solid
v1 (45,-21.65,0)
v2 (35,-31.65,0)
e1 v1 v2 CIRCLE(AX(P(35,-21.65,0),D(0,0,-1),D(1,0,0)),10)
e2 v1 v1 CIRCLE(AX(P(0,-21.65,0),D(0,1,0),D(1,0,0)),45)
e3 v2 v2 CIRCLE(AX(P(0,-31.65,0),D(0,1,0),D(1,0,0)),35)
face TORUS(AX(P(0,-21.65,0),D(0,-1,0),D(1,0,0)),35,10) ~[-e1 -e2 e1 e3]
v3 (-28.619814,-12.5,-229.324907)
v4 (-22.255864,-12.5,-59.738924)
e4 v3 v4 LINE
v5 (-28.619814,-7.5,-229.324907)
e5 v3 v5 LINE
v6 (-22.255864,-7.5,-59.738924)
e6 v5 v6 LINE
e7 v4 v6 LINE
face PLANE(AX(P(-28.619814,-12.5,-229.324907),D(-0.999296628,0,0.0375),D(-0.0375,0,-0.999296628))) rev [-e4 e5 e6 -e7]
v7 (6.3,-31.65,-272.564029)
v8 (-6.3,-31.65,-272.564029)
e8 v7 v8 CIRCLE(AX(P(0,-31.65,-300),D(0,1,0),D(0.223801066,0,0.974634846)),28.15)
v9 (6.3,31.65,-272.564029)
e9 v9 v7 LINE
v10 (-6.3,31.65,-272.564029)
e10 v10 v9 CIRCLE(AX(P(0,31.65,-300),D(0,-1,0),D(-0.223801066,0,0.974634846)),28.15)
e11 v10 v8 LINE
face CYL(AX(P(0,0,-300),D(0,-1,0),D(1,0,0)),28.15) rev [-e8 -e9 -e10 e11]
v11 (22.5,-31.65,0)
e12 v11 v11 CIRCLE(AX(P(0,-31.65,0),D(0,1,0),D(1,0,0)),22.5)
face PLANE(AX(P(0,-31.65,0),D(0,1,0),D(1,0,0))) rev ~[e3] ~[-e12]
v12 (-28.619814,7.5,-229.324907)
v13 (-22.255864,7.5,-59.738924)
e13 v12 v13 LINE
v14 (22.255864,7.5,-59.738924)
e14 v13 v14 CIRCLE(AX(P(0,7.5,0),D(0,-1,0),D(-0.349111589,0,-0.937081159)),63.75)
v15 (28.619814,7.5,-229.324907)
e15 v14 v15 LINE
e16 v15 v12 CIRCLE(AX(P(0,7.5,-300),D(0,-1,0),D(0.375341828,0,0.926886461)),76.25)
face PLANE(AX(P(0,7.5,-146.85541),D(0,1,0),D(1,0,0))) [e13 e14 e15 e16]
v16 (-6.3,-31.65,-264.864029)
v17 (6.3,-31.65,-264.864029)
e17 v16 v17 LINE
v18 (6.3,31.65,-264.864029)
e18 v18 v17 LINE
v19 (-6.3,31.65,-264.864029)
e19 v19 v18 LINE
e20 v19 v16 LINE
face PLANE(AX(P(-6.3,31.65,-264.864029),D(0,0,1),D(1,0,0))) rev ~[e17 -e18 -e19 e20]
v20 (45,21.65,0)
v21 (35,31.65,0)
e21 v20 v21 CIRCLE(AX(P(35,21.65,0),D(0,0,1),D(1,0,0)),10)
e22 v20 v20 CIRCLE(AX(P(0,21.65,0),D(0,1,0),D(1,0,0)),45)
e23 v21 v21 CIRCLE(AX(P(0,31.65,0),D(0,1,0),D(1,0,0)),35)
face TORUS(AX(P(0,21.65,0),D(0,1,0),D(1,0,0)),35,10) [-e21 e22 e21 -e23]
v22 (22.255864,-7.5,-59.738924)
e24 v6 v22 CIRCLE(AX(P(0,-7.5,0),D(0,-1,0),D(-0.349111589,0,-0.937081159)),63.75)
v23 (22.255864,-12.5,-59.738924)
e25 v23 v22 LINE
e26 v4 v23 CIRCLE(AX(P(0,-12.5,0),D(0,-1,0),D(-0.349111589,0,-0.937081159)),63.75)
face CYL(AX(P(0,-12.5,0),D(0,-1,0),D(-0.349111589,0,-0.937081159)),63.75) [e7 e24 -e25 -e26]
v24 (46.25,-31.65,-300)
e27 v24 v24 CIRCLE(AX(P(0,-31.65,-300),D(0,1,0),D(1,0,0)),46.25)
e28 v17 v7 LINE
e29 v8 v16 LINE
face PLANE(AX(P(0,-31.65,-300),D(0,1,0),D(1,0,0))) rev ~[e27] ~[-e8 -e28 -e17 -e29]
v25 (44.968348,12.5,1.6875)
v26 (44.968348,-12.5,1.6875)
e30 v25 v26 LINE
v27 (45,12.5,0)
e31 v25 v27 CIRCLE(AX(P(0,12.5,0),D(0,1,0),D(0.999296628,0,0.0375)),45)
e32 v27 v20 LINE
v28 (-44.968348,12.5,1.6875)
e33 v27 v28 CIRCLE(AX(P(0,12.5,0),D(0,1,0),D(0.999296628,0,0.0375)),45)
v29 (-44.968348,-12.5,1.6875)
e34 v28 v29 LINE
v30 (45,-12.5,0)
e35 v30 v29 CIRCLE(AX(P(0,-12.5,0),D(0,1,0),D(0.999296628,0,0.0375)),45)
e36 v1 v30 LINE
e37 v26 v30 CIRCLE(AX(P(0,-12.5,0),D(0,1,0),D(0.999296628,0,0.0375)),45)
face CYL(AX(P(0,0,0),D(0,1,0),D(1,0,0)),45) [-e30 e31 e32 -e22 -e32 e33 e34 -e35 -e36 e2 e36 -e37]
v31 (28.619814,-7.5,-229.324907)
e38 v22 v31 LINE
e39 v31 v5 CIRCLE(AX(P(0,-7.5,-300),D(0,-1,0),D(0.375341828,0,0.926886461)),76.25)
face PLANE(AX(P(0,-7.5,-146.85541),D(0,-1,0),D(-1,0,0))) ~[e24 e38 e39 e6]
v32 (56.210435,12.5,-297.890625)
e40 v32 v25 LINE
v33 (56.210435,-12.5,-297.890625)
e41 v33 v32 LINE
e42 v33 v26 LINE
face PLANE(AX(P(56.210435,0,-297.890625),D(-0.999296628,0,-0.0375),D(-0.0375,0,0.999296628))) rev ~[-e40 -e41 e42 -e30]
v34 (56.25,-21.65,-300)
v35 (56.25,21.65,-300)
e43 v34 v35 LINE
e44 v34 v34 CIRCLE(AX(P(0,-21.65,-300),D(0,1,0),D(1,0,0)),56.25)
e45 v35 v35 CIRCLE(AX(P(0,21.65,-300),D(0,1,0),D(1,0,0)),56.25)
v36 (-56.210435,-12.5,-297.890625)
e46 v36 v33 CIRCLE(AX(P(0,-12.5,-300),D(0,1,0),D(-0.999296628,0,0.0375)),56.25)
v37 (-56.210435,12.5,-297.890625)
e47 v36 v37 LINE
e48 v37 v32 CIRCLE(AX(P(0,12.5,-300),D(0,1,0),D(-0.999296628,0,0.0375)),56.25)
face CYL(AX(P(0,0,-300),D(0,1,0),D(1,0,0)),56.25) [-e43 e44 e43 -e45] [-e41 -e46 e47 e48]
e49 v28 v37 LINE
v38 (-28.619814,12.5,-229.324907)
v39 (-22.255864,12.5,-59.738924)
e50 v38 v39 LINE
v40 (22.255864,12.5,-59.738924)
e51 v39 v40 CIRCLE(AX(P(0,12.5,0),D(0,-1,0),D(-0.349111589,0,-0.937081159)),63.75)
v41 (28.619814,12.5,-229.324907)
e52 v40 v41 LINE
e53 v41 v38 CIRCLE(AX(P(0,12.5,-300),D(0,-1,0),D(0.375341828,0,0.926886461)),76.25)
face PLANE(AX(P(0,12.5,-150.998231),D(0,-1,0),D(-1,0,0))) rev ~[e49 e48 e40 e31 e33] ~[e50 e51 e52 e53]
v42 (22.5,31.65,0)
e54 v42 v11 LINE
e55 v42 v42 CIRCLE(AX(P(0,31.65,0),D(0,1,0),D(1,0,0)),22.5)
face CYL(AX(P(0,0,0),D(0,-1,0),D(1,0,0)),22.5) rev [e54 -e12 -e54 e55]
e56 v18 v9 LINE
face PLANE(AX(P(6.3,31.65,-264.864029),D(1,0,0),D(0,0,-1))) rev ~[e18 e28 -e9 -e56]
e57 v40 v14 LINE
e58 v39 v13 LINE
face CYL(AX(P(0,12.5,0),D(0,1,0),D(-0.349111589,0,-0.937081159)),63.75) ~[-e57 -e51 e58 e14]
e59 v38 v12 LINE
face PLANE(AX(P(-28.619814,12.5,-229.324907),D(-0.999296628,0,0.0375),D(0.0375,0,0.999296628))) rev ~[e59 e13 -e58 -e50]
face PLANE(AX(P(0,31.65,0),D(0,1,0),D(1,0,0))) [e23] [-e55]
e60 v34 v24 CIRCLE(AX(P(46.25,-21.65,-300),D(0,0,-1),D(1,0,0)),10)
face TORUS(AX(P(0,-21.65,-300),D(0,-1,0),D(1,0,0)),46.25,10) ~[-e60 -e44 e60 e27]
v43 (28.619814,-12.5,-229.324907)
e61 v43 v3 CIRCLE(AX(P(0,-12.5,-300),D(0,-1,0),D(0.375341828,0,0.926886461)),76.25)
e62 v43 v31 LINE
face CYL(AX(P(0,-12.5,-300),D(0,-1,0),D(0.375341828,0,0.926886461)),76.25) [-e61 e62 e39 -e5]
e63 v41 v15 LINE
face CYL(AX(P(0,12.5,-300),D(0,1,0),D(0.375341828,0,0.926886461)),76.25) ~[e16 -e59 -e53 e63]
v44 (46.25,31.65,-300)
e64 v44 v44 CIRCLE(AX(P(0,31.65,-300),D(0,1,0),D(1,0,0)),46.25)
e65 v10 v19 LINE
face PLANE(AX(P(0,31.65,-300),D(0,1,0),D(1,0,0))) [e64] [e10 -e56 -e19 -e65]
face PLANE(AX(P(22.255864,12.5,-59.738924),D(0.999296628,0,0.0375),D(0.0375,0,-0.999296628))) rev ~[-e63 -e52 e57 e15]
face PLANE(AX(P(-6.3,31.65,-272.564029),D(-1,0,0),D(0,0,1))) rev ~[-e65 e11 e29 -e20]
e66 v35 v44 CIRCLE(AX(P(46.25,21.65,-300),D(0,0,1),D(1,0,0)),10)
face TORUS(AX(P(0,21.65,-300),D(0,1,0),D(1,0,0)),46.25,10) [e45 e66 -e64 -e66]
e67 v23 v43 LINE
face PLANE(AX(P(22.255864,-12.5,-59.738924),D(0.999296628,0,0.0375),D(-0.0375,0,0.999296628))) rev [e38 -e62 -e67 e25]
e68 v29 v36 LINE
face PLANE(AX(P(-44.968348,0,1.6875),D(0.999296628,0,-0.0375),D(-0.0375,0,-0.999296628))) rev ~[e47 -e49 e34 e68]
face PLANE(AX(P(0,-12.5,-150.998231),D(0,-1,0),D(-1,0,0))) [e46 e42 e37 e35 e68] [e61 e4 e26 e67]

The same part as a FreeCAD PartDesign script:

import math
import FreeCAD as App
import Part
import Sketcher
Q = App.Units.Quantity


def edges_at(feature, points):
    """Names of the edges that pass closest to the given points."""
    edges = feature.Shape.Edges
    near = lambda p: min(range(len(edges)), key=lambda i: edges[i].distToShape(Part.Vertex(*p))[0])
    return sorted({f"Edge{near(p) + 1}" for p in points})

doc = App.newDocument("Part")
body = doc.addObject("PartDesign::Body", "Body")

sketch1 = body.newObject("Sketcher::SketchObject", "Sketch")
sketch1.AttachmentSupport = (doc.getObject("XZ_Plane"), [""])
sketch1.MapMode = "FlatFace"
sketch1.addGeometry([
    Part.Circle(App.Vector(0, 0, 0), App.Vector(0, 0, 1), 45),
    Part.Circle(App.Vector(0, 0, 0), App.Vector(0, 0, 1), 22),
], False)
sketch1.addConstraint([
    Sketcher.Constraint("Coincident", 0, 3, -1, 1),
    Sketcher.Constraint("Coincident", 1, 3, -1, 1),
    Sketcher.Constraint("Diameter", 0, Q("90 mm")),
    Sketcher.Constraint("Diameter", 1, Q("45 mm")),
])
pad1 = body.newObject("PartDesign::Pad", "Pad")
pad1.Profile = sketch1
pad1.Length = 63.3
pad1.Midplane = True
body2 = doc.addObject("PartDesign::Body", "Body001")

sketch2 = body2.newObject("Sketcher::SketchObject", "Sketch001")
sketch2.AttachmentSupport = (doc.getObject("XZ_Plane001"), [""])
sketch2.MapMode = "FlatFace"
sketch2.addGeometry([
    Part.Circle(App.Vector(0, -300, 0), App.Vector(0, 0, 1), 56),
    Part.Circle(App.Vector(0, -300, 0), App.Vector(0, 0, 1), 28),
], False)
sketch2.addConstraint([
    Sketcher.Constraint("Coincident", 1, 3, 0, 3),
    Sketcher.Constraint("PointOnObject", 0, 3, -2),
    Sketcher.Constraint("Diameter", 0, Q("112.5 mm")),
    Sketcher.Constraint("Diameter", 1, Q("56.3 mm")),
    Sketcher.Constraint("DistanceY", 0, 3, -1, 1, Q("300 mm")),
])
pad2 = body2.newObject("PartDesign::Pad", "Pad001")
pad2.Profile = sketch2
pad2.Length = 63.3
pad2.Midplane = True
body.AllowCompound = True
doc.recompute()

boolean = body.newObject("PartDesign::Boolean", "Boolean")
boolean.Type = "Fuse"
boolean.addObjects([body2])

sketch3 = body.newObject("Sketcher::SketchObject", "Sketch002")
sketch3.AttachmentSupport = (doc.getObject("XZ_Plane"), [""])
sketch3.MapMode = "FlatFace"
sketch3.addGeometry([
    Part.LineSegment(App.Vector(45, 2, 0), App.Vector(56, -298, 0)),
    Part.ArcOfCircle(Part.Circle(App.Vector(0, -300, 0), App.Vector(0, 0, 1), 56), math.radians(2), math.radians(178)),
    Part.LineSegment(App.Vector(-56, -298, 0), App.Vector(-45, 2, 0)),
    Part.ArcOfCircle(Part.Circle(App.Vector(0, 0, 0), App.Vector(0, 0, 1), 45), math.radians(178), math.radians(362)),
], False)
sketch3.addConstraint([
    Sketcher.Constraint("Tangent", 0, 2, 1, 1),
    Sketcher.Constraint("Tangent", 1, 2, 2, 1),
    Sketcher.Constraint("Tangent", 2, 2, 3, 1),
    Sketcher.Constraint("Tangent", 3, 2, 0, 1),
    Sketcher.Constraint("Coincident", 3, 3, -1, 1),
    Sketcher.Constraint("PointOnObject", 1, 3, -2),
    Sketcher.Constraint("Radius", 3, Q("45 mm")),
    Sketcher.Constraint("Radius", 1, Q("56.25 mm")),
    Sketcher.Constraint("DistanceY", 1, 3, -1, 1, Q("300 mm")),
])
pad3 = body.newObject("PartDesign::Pad", "Pad002")
pad3.Profile = sketch3
pad3.Length = 25
pad3.Midplane = True

sketch4 = body.newObject("Sketcher::SketchObject", "Sketch003")
sketch4.AttachmentSupport = (doc.getObject("XZ_Plane"), [""])
sketch4.MapMode = "FlatFace"
sketch4.AttachmentOffset = App.Placement(App.Vector(0, 0, -12.5), App.Rotation())
sketch4.addGeometry([
    Part.LineSegment(App.Vector(22, -60, 0), App.Vector(29, -229, 0)),
    Part.ArcOfCircle(Part.Circle(App.Vector(0, -300, 0), App.Vector(0, 0, 1), 76), math.radians(68), math.radians(112)),
    Part.LineSegment(App.Vector(-29, -229, 0), App.Vector(-22, -60, 0)),
    Part.ArcOfCircle(Part.Circle(App.Vector(0, 0, 0), App.Vector(0, 0, 1), 64), math.radians(-110), math.radians(-70)),
], False)
sketch4.addConstraint([
    Sketcher.Constraint("Coincident", 0, 2, 1, 1),
    Sketcher.Constraint("Coincident", 1, 2, 2, 1),
    Sketcher.Constraint("Coincident", 2, 2, 3, 1),
    Sketcher.Constraint("Coincident", 3, 2, 0, 1),
    Sketcher.Constraint("Coincident", 3, 3, -1, 1),
    Sketcher.Constraint("Symmetric", 0, 2, 1, 2, -2),
    Sketcher.Constraint("Horizontal", 2, 2, 3, 2),
    Sketcher.Constraint("Radius", 1, Q("76.25 mm")),
    Sketcher.Constraint("Radius", 3, Q("63.75 mm")),
    Sketcher.Constraint("DistanceY", 1, 3, -1, 1, Q("300 mm")),
    Sketcher.Constraint("Distance", 0, Q("169.70535 mm")),
    Sketcher.Constraint("DistanceX", 1, 2, 0, 2, Q("57.239629 mm")),
])
pocket1 = body.newObject("PartDesign::Pocket", "Pocket")
pocket1.Profile = sketch4
pocket1.Length = 5
pocket1.Reversed = True
doc.recompute()

mirrored = body.newObject("PartDesign::Mirrored", "Mirrored")
mirrored.Originals = [pocket1]
mirrored.MirrorPlane = (doc.getObject("XZ_Plane"), [""])
body.Tip = mirrored

sketch5 = body.newObject("Sketcher::SketchObject", "Sketch004")
sketch5.AttachmentSupport = (doc.getObject("XZ_Plane"), [""])
sketch5.MapMode = "FlatFace"
sketch5.AttachmentOffset = App.Placement(App.Vector(0, 0, -31.65), App.Rotation())
sketch5.addGeometry([
    Part.LineSegment(App.Vector(-6, -273, 0), App.Vector(-6, -265, 0)),
    Part.LineSegment(App.Vector(-6, -265, 0), App.Vector(6, -265, 0)),
    Part.LineSegment(App.Vector(6, -265, 0), App.Vector(6, -273, 0)),
    Part.ArcOfCircle(Part.Circle(App.Vector(0, -300, 0), App.Vector(0, 0, 1), 28), math.radians(103), math.radians(437)),
], False)
sketch5.addConstraint([
    Sketcher.Constraint("Coincident", 0, 2, 1, 1),
    Sketcher.Constraint("Coincident", 1, 2, 2, 1),
    Sketcher.Constraint("Coincident", 2, 2, 3, 2),
    Sketcher.Constraint("Coincident", 3, 1, 0, 1),
    Sketcher.Constraint("Vertical", 0),
    Sketcher.Constraint("Horizontal", 1),
    Sketcher.Constraint("Vertical", 2),
    Sketcher.Constraint("Symmetric", 2, 2, 3, 1, -2),
    Sketcher.Constraint("Radius", 3, Q("28.15 mm")),
    Sketcher.Constraint("DistanceX", 1, 1, 1, 2, Q("12.6 mm")),
    Sketcher.Constraint("DistanceY", 0, 1, 0, 2, Q("7.7 mm")),
    Sketcher.Constraint("DistanceY", 3, 3, -1, 1, Q("300 mm")),
])
pocket2 = body.newObject("PartDesign::Pocket", "Pocket001")
pocket2.Profile = sketch5
pocket2.Type = "ThroughAll"
pocket2.Reversed = True
doc.recompute()

fillet = body.newObject("PartDesign::Fillet", "Fillet")
fillet.Base = (pocket2, edges_at(pocket2, [
    (-45, -31.65, 0),
    (-56.25, 31.65, -300),
    (-56.25, -31.65, -300),
    (-45, 31.65, 0),
]))
fillet.Radius = 10

doc.recompute()
